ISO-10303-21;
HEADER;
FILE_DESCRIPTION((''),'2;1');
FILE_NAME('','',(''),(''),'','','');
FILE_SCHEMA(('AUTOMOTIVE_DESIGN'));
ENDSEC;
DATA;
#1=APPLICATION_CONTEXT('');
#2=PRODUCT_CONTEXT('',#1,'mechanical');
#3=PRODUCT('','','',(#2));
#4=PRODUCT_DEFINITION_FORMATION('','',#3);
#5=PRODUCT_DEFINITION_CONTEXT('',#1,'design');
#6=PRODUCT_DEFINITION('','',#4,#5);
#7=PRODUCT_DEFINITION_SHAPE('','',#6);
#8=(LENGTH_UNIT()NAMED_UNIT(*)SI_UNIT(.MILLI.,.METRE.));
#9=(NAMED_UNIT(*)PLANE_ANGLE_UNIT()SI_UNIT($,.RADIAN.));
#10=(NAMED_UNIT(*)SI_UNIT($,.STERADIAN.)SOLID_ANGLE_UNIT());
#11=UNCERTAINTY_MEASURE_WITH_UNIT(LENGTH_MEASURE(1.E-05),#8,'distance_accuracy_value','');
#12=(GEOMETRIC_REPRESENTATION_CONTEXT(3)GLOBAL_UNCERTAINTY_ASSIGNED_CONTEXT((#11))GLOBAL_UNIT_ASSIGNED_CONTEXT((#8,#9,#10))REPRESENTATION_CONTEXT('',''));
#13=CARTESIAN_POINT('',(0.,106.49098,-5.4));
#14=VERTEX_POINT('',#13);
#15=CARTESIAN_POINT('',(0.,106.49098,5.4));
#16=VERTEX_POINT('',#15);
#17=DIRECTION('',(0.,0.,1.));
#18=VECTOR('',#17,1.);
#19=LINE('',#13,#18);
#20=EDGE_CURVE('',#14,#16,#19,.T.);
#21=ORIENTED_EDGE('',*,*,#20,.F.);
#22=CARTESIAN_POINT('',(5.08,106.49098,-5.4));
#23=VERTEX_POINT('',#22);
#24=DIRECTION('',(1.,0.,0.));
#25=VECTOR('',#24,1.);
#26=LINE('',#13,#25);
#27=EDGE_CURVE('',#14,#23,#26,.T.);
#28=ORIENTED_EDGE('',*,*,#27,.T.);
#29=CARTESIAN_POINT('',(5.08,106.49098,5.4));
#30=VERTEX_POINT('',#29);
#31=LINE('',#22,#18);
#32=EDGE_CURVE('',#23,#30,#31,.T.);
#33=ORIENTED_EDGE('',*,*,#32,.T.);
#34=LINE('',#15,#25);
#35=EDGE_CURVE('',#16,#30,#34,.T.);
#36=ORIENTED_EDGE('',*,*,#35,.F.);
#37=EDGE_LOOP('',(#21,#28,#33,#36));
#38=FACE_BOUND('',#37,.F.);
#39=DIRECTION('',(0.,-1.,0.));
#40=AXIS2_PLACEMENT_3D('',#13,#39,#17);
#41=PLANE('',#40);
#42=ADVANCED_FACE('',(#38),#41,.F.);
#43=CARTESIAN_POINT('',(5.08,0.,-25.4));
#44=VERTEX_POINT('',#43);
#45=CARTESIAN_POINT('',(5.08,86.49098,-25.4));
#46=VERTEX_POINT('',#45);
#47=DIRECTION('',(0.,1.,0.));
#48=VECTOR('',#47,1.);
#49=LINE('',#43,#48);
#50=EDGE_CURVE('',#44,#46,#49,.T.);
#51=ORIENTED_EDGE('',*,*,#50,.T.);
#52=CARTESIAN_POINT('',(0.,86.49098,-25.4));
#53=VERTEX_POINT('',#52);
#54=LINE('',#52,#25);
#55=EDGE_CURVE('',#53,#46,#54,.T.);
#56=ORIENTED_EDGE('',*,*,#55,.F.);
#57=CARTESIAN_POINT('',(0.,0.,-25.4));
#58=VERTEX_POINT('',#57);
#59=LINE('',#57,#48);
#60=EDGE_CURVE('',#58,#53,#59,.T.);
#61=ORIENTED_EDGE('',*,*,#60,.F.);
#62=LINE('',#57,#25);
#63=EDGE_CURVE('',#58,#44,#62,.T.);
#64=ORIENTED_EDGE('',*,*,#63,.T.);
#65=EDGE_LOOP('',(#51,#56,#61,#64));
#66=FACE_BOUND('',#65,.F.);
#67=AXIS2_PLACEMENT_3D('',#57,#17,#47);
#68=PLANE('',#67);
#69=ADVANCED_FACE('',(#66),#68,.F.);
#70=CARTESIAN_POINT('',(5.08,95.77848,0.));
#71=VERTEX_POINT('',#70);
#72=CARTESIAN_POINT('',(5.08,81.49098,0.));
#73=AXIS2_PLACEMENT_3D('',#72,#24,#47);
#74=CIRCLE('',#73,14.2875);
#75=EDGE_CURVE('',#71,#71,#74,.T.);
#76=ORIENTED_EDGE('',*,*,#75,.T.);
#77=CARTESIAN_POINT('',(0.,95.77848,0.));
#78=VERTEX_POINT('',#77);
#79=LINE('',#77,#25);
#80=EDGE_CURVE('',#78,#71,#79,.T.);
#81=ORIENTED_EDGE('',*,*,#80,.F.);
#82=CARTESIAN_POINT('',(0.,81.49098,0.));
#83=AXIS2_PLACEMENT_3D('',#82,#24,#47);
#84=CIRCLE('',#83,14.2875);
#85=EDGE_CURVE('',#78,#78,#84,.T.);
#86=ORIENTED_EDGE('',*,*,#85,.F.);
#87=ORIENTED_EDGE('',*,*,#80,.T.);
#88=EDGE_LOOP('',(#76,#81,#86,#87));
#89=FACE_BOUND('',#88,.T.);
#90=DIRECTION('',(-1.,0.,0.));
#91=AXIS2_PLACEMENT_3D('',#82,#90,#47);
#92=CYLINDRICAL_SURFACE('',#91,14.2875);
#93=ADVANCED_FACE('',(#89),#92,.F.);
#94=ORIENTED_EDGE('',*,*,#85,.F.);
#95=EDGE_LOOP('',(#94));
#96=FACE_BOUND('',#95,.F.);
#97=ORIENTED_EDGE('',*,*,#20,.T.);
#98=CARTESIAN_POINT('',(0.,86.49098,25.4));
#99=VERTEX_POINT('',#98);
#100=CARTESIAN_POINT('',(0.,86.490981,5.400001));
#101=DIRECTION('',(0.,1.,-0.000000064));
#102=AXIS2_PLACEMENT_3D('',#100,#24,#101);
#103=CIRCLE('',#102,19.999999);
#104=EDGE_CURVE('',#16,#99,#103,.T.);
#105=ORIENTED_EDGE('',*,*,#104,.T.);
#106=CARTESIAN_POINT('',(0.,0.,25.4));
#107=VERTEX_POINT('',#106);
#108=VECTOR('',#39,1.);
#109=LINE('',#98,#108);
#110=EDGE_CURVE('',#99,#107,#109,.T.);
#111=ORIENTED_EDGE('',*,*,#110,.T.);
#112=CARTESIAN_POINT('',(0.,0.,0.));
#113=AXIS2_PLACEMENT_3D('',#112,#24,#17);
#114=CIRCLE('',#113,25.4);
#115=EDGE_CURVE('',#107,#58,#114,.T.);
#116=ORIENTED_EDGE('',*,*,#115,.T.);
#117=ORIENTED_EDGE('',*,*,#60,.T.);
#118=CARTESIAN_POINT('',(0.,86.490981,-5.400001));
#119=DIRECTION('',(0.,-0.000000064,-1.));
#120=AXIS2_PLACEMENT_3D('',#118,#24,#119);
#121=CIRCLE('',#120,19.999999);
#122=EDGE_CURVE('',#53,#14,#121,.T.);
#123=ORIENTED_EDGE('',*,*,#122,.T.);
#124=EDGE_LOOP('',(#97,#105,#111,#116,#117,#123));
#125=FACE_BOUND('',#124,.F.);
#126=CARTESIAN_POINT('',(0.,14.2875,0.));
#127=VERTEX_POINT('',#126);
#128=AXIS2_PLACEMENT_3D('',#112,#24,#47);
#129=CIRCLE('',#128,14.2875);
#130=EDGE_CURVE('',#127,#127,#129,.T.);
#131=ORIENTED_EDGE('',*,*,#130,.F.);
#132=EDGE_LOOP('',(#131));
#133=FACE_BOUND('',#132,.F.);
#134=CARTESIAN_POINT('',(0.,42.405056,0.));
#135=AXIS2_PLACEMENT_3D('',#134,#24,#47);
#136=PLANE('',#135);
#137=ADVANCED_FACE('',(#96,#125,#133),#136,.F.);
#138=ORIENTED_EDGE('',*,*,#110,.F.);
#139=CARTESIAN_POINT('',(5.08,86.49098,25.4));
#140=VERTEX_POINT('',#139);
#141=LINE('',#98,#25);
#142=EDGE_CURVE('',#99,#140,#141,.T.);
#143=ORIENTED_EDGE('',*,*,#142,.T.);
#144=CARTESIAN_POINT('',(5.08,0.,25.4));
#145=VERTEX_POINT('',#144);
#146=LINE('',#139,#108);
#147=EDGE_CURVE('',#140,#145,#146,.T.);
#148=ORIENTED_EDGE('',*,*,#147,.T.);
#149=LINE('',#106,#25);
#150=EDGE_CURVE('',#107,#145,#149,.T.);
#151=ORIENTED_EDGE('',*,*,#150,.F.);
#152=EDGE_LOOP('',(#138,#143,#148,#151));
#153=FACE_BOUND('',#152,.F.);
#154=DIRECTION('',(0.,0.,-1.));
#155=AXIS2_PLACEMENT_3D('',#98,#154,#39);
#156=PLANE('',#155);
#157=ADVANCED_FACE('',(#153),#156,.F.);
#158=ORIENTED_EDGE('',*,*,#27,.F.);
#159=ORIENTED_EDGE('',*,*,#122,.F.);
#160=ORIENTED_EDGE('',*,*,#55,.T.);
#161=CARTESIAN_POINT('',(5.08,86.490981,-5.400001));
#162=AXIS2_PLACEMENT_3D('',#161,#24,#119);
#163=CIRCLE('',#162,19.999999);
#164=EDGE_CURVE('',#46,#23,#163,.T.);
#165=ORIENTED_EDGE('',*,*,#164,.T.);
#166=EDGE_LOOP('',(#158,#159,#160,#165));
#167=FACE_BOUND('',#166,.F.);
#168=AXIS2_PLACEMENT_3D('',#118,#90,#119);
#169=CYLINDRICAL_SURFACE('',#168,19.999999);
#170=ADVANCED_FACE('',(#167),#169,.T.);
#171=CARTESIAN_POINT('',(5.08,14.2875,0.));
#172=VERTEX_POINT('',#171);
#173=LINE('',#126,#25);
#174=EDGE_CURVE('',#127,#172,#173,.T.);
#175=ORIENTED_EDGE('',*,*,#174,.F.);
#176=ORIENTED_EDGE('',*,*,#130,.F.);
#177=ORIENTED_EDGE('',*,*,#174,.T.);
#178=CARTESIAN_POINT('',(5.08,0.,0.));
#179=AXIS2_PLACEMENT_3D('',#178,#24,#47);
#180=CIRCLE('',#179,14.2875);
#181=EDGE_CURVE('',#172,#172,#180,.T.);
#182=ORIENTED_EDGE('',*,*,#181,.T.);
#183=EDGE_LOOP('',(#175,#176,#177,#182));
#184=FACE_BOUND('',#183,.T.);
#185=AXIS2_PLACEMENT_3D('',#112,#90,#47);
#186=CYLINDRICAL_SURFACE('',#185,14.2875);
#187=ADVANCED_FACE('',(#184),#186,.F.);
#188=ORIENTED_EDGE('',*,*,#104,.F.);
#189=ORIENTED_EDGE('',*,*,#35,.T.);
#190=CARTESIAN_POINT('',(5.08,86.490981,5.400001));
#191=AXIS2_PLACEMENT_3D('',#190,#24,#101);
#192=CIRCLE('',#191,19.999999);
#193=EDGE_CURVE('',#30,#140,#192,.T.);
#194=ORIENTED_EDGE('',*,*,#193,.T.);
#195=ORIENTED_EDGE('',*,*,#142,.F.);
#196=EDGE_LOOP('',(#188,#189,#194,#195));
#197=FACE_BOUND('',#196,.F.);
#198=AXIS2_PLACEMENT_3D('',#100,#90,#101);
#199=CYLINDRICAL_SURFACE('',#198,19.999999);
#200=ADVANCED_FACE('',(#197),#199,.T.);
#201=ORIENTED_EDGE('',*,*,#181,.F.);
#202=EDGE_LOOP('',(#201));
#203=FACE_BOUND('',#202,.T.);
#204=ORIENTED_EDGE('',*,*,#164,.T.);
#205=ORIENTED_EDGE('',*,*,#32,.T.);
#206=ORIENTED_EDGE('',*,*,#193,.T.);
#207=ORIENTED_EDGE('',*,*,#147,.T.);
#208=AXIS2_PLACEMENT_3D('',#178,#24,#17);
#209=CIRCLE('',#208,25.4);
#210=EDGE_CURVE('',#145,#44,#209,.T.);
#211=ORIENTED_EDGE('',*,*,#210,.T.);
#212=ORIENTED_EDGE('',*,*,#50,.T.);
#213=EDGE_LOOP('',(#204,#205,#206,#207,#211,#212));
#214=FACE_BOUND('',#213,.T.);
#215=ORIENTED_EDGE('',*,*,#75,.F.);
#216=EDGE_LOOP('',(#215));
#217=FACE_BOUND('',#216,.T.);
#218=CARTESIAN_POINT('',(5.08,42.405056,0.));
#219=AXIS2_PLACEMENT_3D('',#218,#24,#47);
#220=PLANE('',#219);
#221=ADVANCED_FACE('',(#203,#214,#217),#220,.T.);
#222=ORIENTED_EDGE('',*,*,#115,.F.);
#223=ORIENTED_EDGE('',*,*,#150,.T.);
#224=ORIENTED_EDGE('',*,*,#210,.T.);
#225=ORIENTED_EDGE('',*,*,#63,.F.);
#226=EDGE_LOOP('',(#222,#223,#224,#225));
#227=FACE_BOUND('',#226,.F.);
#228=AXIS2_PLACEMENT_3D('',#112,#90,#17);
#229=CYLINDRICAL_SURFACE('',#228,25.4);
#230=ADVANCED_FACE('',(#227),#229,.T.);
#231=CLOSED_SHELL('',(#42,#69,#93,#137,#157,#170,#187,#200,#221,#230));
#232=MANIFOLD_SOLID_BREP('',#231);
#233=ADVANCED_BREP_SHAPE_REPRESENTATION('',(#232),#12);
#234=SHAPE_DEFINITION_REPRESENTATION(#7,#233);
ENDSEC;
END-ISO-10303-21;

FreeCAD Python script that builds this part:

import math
import FreeCAD as App
import Part
import Sketcher

V = App.Vector
Q = App.Units.Quantity

doc = App.newDocument("Part")
body = doc.addObject("PartDesign::Body", "Body")

sketch1 = doc.addObject("Sketcher::SketchObject", "Sketch")
body.addObject(sketch1)
sketch1.AttachmentSupport = (doc.YZ_Plane, [""])
sketch1.MapMode = "FlatFace"
sketch1.addGeometry(Part.LineSegment(V(86, 25, 0), V(0, 25, 0)), False)
sketch1.addGeometry(Part.ArcOfCircle(Part.Circle(V(0, 0, 0), V(0, 0, 1), 25), math.radians(90), math.radians(270)), False)
sketch1.addGeometry(Part.LineSegment(V(0, -25, 0), V(86, -25, 0)), False)
sketch1.addGeometry(Part.ArcOfCircle(Part.Circle(V(86, -5, 0), V(0, 0, 1), 20), math.radians(-90), math.radians(0)), False)
sketch1.addGeometry(Part.LineSegment(V(106, -5, 0), V(106, 5, 0)), False)
sketch1.addGeometry(Part.ArcOfCircle(Part.Circle(V(86, 5, 0), V(0, 0, 1), 20), math.radians(0), math.radians(90)), False)
sketch1.addGeometry(Part.Circle(V(0, 0, 0), V(0, 0, 1), 14), False)
sketch1.addGeometry(Part.Circle(V(81, 0, 0), V(0, 0, 1), 14), False)
sketch1.addConstraint(Sketcher.Constraint("Tangent", 0, 2, 1, 1))
sketch1.addConstraint(Sketcher.Constraint("Tangent", 1, 2, 2, 1))
sketch1.addConstraint(Sketcher.Constraint("Tangent", 2, 2, 3, 1))
sketch1.addConstraint(Sketcher.Constraint("Tangent", 3, 2, 4, 1))
sketch1.addConstraint(Sketcher.Constraint("Tangent", 4, 2, 5, 1))
sketch1.addConstraint(Sketcher.Constraint("Tangent", 5, 2, 0, 1))
sketch1.addConstraint(Sketcher.Constraint("Horizontal", 0))
sketch1.addConstraint(Sketcher.Constraint("Horizontal", 2))
sketch1.addConstraint(Sketcher.Constraint("Vertical", 4))
sketch1.addConstraint(Sketcher.Constraint("Coincident", 1, 3, -1, 1))
sketch1.addConstraint(Sketcher.Constraint("Coincident", 6, 3, -1, 1))
sketch1.addConstraint(Sketcher.Constraint("Equal", 3, 5))
sketch1.addConstraint(Sketcher.Constraint("Equal", 6, 7))
sketch1.addConstraint(Sketcher.Constraint("PointOnObject", 7, 3, -1))
sketch1.addConstraint(Sketcher.Constraint("Radius", 1, Q("1 in")))
sketch1.addConstraint(Sketcher.Constraint("Diameter", 6, Q("1.125 in")))
sketch1.addConstraint(Sketcher.Constraint("Radius", 3, Q("19.999999 mm")))
sketch1.addConstraint(Sketcher.Constraint("DistanceX", 0, 2, 0, 1, Q("86.49098 mm")))
sketch1.addConstraint(Sketcher.Constraint("DistanceX", 7, 3, 3, 3, Q("5.000001 mm")))
pad1 = doc.addObject("PartDesign::Pad", "Pad")
body.addObject(pad1)
pad1.Profile = sketch1
pad1.Length = Q("0.2 in")

doc.recompute()
